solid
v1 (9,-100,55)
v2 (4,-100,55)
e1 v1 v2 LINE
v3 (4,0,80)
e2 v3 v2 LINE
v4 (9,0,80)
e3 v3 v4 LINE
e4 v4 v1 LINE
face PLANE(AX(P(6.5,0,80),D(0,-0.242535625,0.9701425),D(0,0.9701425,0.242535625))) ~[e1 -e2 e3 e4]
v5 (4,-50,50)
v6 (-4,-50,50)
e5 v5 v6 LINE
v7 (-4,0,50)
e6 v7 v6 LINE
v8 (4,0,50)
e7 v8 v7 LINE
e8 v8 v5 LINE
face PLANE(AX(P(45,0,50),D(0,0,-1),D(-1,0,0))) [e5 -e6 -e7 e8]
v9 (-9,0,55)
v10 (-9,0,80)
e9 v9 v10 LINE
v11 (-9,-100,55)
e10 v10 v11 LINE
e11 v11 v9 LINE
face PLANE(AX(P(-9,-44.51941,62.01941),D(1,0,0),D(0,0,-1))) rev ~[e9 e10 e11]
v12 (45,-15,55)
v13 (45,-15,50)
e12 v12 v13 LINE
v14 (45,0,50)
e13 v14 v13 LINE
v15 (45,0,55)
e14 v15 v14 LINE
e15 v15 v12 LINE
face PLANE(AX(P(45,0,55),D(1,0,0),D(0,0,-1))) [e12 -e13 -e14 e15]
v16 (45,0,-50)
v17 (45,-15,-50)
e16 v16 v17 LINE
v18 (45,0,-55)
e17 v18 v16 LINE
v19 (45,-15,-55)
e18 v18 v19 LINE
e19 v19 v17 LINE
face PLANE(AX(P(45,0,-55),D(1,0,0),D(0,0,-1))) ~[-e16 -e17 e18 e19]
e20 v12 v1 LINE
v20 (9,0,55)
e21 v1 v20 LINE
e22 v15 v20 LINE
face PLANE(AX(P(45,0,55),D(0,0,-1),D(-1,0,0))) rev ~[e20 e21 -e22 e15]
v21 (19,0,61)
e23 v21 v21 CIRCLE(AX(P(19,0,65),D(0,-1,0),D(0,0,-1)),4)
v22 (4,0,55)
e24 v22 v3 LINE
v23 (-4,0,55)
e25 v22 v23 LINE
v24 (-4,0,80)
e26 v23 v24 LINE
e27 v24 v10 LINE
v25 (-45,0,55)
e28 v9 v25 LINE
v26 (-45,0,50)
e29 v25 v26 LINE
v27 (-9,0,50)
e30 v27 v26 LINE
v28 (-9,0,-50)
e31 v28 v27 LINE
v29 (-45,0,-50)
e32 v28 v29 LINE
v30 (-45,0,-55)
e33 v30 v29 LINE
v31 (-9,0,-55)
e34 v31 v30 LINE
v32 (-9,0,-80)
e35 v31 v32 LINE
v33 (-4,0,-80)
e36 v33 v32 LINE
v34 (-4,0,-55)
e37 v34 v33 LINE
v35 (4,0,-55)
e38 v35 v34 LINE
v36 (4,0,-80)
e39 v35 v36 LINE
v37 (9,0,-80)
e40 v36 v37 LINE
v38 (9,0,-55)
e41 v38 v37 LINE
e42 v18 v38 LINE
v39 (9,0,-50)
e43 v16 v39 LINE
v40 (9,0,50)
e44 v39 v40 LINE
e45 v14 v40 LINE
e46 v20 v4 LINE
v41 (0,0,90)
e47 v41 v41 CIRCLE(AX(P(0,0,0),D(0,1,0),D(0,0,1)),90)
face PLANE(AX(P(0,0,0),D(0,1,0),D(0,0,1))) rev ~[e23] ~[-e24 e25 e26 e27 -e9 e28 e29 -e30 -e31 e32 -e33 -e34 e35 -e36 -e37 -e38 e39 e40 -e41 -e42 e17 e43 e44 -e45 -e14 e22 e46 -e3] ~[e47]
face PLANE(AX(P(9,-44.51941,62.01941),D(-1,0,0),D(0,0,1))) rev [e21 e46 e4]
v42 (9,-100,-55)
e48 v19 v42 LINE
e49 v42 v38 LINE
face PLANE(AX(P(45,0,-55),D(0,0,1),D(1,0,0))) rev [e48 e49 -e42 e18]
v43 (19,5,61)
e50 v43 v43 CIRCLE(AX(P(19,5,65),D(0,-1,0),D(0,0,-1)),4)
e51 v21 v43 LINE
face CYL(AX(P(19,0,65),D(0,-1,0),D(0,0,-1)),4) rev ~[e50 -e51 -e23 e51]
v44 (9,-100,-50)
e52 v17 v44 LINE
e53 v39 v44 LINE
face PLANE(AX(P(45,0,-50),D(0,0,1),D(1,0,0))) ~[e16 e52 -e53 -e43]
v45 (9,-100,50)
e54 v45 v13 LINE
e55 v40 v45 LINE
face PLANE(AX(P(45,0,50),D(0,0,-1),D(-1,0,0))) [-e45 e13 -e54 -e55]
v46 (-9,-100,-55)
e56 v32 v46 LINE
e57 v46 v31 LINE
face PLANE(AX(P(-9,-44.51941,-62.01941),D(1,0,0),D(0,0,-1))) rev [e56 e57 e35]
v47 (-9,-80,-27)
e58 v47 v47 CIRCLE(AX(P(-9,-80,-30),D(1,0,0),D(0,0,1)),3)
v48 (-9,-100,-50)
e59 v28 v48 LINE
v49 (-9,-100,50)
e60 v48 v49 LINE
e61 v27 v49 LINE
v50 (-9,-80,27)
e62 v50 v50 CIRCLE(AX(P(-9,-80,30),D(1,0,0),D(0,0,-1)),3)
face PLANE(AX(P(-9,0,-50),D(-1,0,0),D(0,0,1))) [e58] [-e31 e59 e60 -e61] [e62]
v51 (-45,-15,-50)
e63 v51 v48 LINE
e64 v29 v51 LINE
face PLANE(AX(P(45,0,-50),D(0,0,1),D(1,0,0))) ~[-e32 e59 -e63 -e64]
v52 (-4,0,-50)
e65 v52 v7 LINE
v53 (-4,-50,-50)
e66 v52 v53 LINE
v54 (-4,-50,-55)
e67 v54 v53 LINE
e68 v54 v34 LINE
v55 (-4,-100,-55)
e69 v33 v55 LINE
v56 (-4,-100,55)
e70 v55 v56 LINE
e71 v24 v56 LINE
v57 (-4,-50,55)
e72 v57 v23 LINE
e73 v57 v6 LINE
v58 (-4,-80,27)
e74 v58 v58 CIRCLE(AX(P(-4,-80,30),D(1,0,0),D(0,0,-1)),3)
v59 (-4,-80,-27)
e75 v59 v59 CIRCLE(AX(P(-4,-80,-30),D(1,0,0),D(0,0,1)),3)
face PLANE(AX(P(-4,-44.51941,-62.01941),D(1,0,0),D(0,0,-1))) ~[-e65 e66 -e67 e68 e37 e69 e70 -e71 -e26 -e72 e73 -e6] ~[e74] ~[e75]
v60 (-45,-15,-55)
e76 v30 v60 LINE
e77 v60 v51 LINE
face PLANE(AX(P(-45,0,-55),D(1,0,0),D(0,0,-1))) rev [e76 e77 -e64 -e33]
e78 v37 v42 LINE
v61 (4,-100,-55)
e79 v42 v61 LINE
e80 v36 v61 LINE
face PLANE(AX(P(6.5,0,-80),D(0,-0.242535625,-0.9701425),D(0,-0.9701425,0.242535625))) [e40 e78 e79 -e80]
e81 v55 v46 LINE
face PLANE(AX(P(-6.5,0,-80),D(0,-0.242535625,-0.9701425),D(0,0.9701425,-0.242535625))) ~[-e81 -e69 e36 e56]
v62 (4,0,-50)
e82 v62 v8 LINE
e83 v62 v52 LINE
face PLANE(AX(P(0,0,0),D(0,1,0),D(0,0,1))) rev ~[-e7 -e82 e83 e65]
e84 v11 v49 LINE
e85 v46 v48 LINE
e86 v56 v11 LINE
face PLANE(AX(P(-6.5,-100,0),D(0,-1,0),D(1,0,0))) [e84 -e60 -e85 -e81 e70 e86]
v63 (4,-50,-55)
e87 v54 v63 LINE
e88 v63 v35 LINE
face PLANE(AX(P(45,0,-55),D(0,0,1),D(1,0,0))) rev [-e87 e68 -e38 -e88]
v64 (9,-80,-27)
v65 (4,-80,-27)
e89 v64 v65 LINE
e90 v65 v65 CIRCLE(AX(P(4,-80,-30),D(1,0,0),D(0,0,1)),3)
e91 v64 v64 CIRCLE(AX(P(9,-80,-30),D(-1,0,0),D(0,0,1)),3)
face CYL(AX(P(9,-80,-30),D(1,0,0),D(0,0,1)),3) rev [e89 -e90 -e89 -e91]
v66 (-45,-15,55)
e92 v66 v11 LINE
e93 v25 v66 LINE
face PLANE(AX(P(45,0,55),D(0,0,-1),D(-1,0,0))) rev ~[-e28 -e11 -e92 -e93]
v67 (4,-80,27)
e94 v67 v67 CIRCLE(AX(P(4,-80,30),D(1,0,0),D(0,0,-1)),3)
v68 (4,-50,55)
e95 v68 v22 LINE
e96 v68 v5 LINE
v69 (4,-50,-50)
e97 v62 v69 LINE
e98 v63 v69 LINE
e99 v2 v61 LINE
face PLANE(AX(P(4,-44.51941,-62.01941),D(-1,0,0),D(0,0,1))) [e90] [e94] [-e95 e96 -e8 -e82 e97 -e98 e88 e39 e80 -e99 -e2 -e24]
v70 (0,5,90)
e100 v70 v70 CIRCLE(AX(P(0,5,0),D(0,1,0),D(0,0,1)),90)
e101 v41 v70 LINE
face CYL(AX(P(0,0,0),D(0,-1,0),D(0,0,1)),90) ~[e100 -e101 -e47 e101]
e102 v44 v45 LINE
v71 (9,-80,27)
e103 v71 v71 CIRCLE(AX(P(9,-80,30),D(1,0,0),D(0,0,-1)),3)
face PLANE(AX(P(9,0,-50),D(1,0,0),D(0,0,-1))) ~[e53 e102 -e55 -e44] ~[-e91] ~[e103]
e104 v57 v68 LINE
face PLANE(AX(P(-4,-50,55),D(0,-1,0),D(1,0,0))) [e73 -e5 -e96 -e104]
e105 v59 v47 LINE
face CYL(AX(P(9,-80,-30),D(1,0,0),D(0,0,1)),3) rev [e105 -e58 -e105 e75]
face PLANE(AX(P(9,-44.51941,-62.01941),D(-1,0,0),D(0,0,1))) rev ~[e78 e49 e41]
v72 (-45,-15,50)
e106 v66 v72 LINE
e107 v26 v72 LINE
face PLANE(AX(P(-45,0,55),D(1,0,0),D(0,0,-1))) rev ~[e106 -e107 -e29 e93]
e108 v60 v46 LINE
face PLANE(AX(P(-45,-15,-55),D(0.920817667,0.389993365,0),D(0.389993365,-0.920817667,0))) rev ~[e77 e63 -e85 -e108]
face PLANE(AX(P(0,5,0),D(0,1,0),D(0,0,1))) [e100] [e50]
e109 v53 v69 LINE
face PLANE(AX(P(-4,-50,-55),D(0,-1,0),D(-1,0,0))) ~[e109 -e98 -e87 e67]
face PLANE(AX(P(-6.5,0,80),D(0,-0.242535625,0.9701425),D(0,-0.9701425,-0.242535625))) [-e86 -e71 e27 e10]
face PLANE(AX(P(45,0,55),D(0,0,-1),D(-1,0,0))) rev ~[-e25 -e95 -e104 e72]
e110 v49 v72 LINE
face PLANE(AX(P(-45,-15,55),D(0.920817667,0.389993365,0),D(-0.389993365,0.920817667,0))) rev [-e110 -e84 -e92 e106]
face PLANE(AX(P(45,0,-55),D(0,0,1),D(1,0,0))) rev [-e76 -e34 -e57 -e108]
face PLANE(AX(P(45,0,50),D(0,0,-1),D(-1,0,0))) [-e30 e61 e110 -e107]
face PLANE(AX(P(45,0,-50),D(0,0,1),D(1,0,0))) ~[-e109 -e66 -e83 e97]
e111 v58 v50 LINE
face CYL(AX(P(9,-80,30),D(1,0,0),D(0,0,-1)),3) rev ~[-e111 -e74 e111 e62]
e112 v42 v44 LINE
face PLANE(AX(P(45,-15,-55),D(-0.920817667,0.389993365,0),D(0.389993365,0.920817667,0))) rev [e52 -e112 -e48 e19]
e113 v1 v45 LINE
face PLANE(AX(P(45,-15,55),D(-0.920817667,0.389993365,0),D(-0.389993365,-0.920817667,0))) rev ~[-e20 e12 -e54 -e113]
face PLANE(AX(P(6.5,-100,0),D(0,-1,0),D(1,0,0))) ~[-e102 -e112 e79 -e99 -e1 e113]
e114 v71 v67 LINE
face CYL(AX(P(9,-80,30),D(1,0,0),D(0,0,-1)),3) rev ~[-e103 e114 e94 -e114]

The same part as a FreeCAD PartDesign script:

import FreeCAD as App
import Part
import Sketcher

V = App.Vector


def add_polygon(sketch, points):
    """Adds a closed chain of lines whose ends are joined by coincident constraints."""
    first, n = sketch.GeometryCount, len(points)
    for a, b in zip(points, points[1:] + points[:1]):
        sketch.addGeometry(Part.LineSegment(App.Vector(*a, 0), App.Vector(*b, 0)), False)
    for i in range(n):
        sketch.addConstraint(Sketcher.Constraint("Coincident", first + i, 2, first + (i + 1) % n, 1))

doc = App.newDocument("Part")
body = doc.addObject("PartDesign::Body", "Body")

sketch1 = body.newObject("Sketcher::SketchObject", "Sketch")
sketch1.AttachmentSupport = (doc.getObject("XZ_Plane"), [""])
sketch1.MapMode = "FlatFace"
sketch1.addGeometry(Part.Circle(V(0, 0, 0), V(0, 0, 1), 90), False)
sketch1.addConstraint(Sketcher.Constraint("Coincident", 0, 3, -1, 1))
sketch1.addConstraint(Sketcher.Constraint("Diameter", 0, 180.0))
pad1 = body.newObject("PartDesign::Pad", "Pad")
pad1.Profile = sketch1
pad1.Length = 5
pad1.Reversed = True

sketch2 = body.newObject("Sketcher::SketchObject", "Sketch001")
sketch2.AttachmentSupport = (doc.getObject("XZ_Plane"), [""])
sketch2.MapMode = "FlatFace"
add_polygon(sketch2, [(45, 50), (45, 55), (-45, 55), (-45, 50)])
sketch2.addConstraint(Sketcher.Constraint("Vertical", 0))
sketch2.addConstraint(Sketcher.Constraint("Horizontal", 1))
sketch2.addConstraint(Sketcher.Constraint("Vertical", 2))
sketch2.addConstraint(Sketcher.Constraint("Horizontal", 3))
sketch2.addConstraint(Sketcher.Constraint("DistanceX", 1, 2, 1, 1, 90.0))
sketch2.addConstraint(Sketcher.Constraint("DistanceY", 0, 1, 0, 2, 5.0))
sketch2.addConstraint(Sketcher.Constraint("DistanceX", -1, 1, 0, 2, 45.0))
sketch2.addConstraint(Sketcher.Constraint("DistanceY", -1, 1, 0, 2, 55.0))
pad2 = body.newObject("PartDesign::Pad", "Pad001")
pad2.Profile = sketch2
pad2.Length = 100

sketch3 = body.newObject("Sketcher::SketchObject", "Sketch002")
sketch3.AttachmentSupport = (doc.getObject("XY_Plane"), [""])
sketch3.MapMode = "FlatFace"
sketch3.AttachmentOffset = App.Placement(V(0, 0, 55), App.Rotation())
add_polygon(sketch3, [(45, -15), (9, -100), (45, -100)])
sketch3.addConstraint(Sketcher.Constraint("Horizontal", 1))
sketch3.addConstraint(Sketcher.Constraint("Vertical", 2))
sketch3.addConstraint(Sketcher.Constraint("DistanceX", 1, 1, 1, 2, 36.0))
sketch3.addConstraint(Sketcher.Constraint("DistanceY", 2, 1, 2, 2, 85.0))
sketch3.addConstraint(Sketcher.Constraint("DistanceX", -1, 1, 0, 2, 9.0))
sketch3.addConstraint(Sketcher.Constraint("DistanceY", 0, 2, -1, 1, 100.0))
pocket1 = body.newObject("PartDesign::Pocket", "Pocket")
pocket1.Profile = sketch3
pocket1.Length = 100
doc.recompute()

mirrored = body.newObject("PartDesign::Mirrored", "Mirrored")
mirrored.Originals = [pocket1]
mirrored.MirrorPlane = (doc.getObject("YZ_Plane"), [""])
body.Tip = mirrored

sketch4 = body.newObject("Sketcher::SketchObject", "Sketch003")
sketch4.AttachmentSupport = (doc.getObject("XY_Plane"), [""])
sketch4.MapMode = "FlatFace"
sketch4.AttachmentOffset = App.Placement(V(0, 0, 55), App.Rotation())
add_polygon(sketch4, [(-4, -50), (-4, -100), (4, -100), (4, -50)])
sketch4.addConstraint(Sketcher.Constraint("Vertical", 0))
sketch4.addConstraint(Sketcher.Constraint("Horizontal", 1))
sketch4.addConstraint(Sketcher.Constraint("Vertical", 2))
sketch4.addConstraint(Sketcher.Constraint("Horizontal", 3))
sketch4.addConstraint(Sketcher.Constraint("DistanceX", 1, 1, 1, 2, 8.0))
sketch4.addConstraint(Sketcher.Constraint("DistanceY", 0, 2, 0, 1, 50.0))
sketch4.addConstraint(Sketcher.Constraint("DistanceX", 0, 2, -1, 1, 4.0))
sketch4.addConstraint(Sketcher.Constraint("DistanceY", 0, 2, -1, 1, 100.0))
pocket2 = body.newObject("PartDesign::Pocket", "Pocket001")
pocket2.Profile = sketch4
pocket2.Type = "ThroughAll"
doc.recompute()

mirrored2 = body.newObject("PartDesign::Mirrored", "Mirrored001")
mirrored2.Originals = [pad2, pocket1, pocket2]
mirrored2.MirrorPlane = (doc.getObject("XY_Plane"), [""])
body.Tip = mirrored2

sketch5 = body.newObject("Sketcher::SketchObject", "Sketch004")
sketch5.AttachmentSupport = (doc.getObject("XY_Plane"), [""])
sketch5.MapMode = "FlatFace"
sketch5.AttachmentOffset = App.Placement(V(0, 0, -55), App.Rotation())
add_polygon(sketch5, [(-45, -15), (-9, -100), (-45, -100)])
sketch5.addConstraint(Sketcher.Constraint("Horizontal", 1))
sketch5.addConstraint(Sketcher.Constraint("Vertical", 2))
sketch5.addConstraint(Sketcher.Constraint("DistanceX", 1, 2, 1, 1, 36.0))
sketch5.addConstraint(Sketcher.Constraint("DistanceY", 2, 1, 2, 2, 85.0))
sketch5.addConstraint(Sketcher.Constraint("DistanceX", 0, 2, -1, 1, 9.0))
sketch5.addConstraint(Sketcher.Constraint("DistanceY", 0, 2, -1, 1, 100.0))
pocket3 = body.newObject("PartDesign::Pocket", "Pocket002")
pocket3.Profile = sketch5
pocket3.Length = 100
pocket3.Reversed = True

sketch6 = body.newObject("Sketcher::SketchObject", "Sketch005")
sketch6.AttachmentSupport = (doc.getObject("XZ_Plane"), [""])
sketch6.MapMode = "FlatFace"
add_polygon(sketch6, [(-9, 50), (-9, -50), (-4, -50), (-4, 50)])
sketch6.addConstraint(Sketcher.Constraint("Vertical", 0))
sketch6.addConstraint(Sketcher.Constraint("Horizontal", 1))
sketch6.addConstraint(Sketcher.Constraint("Vertical", 2))
sketch6.addConstraint(Sketcher.Constraint("Horizontal", 3))
sketch6.addConstraint(Sketcher.Constraint("DistanceX", 1, 1, 1, 2, 5.0))
sketch6.addConstraint(Sketcher.Constraint("DistanceY", 0, 2, 0, 1, 100.0))
sketch6.addConstraint(Sketcher.Constraint("DistanceX", 0, 2, -1, 1, 9.0))
sketch6.addConstraint(Sketcher.Constraint("DistanceY", 0, 2, -1, 1, 50.0))
pad3 = body.newObject("PartDesign::Pad", "Pad002")
pad3.Profile = sketch6
pad3.Length = 100
doc.recompute()

mirrored3 = body.newObject("PartDesign::Mirrored", "Mirrored002")
mirrored3.Originals = [pad3]
mirrored3.MirrorPlane = (doc.getObject("YZ_Plane"), [""])
body.Tip = mirrored3

sketch7 = body.newObject("Sketcher::SketchObject", "Sketch006")
sketch7.AttachmentSupport = (doc.getObject("YZ_Plane"), [""])
sketch7.MapMode = "FlatFace"
sketch7.AttachmentOffset = App.Placement(V(0, 0, -6.5), App.Rotation())
add_polygon(sketch7, [(-100, 55), (0, 55), (0, 80)])
sketch7.addConstraint(Sketcher.Constraint("Horizontal", 0))
sketch7.addConstraint(Sketcher.Constraint("Vertical", 1))
sketch7.addConstraint(Sketcher.Constraint("PointOnObject", 0, 2, -2))
sketch7.addConstraint(Sketcher.Constraint("DistanceX", 0, 1, 0, 2, 100.0))
sketch7.addConstraint(Sketcher.Constraint("DistanceY", 1, 1, 1, 2, 25.0))
sketch7.addConstraint(Sketcher.Constraint("DistanceY", -1, 1, 0, 2, 55.0))
pad4 = body.newObject("PartDesign::Pad", "Pad003")
pad4.Profile = sketch7
pad4.Length = 5
pad4.Midplane = True
doc.recompute()

mirrored4 = body.newObject("PartDesign::Mirrored", "Mirrored003")
mirrored4.Originals = [pad4]
mirrored4.MirrorPlane = (doc.getObject("YZ_Plane"), [""])
body.Tip = mirrored4
doc.recompute()

mirrored5 = body.newObject("PartDesign::Mirrored", "Mirrored004")
mirrored5.Originals = [pad4]
mirrored5.MirrorPlane = (doc.getObject("XY_Plane"), [""])
body.Tip = mirrored5

sketch8 = body.newObject("Sketcher::SketchObject", "Sketch007")
sketch8.AttachmentSupport = (doc.getObject("YZ_Plane"), [""])
sketch8.MapMode = "FlatFace"
sketch8.AttachmentOffset = App.Placement(V(0, 0, 6.5), App.Rotation())
add_polygon(sketch8, [(-100, -55), (0, -55), (0, -80)])
sketch8.addConstraint(Sketcher.Constraint("Horizontal", 0))
sketch8.addConstraint(Sketcher.Constraint("Vertical", 1))
sketch8.addConstraint(Sketcher.Constraint("PointOnObject", 0, 2, -2))
sketch8.addConstraint(Sketcher.Constraint("DistanceX", 0, 1, 0, 2, 100.0))
sketch8.addConstraint(Sketcher.Constraint("DistanceY", 1, 2, 1, 1, 25.0))
sketch8.addConstraint(Sketcher.Constraint("DistanceY", 0, 2, -1, 1, 55.0))
pad5 = body.newObject("PartDesign::Pad", "Pad004")
pad5.Profile = sketch8
pad5.Length = 5
pad5.Midplane = True

sketch9 = body.newObject("Sketcher::SketchObject", "Sketch008")
sketch9.AttachmentSupport = (doc.getObject("YZ_Plane"), [""])
sketch9.MapMode = "FlatFace"
sketch9.AttachmentOffset = App.Placement(V(0, 0, 9), App.Rotation())
sketch9.addGeometry(Part.Circle(V(-80, 30, 0), V(0, 0, 1), 3), False)
sketch9.addConstraint(Sketcher.Constraint("Diameter", 0, 6.0))
sketch9.addConstraint(Sketcher.Constraint("DistanceX", 0, 3, -1, 1, 80.0))
sketch9.addConstraint(Sketcher.Constraint("DistanceY", -1, 1, 0, 3, 30.0))
pocket4 = body.newObject("PartDesign::Pocket", "Pocket003")
pocket4.Profile = sketch9
pocket4.Type = "ThroughAll"
doc.recompute()

mirrored6 = body.newObject("PartDesign::Mirrored", "Mirrored005")
mirrored6.Originals = [pocket4]
mirrored6.MirrorPlane = (doc.getObject("XY_Plane"), [""])
body.Tip = mirrored6

sketch10 = body.newObject("Sketcher::SketchObject", "Sketch009")
sketch10.AttachmentSupport = (doc.getObject("XZ_Plane"), [""])
sketch10.MapMode = "FlatFace"
sketch10.addGeometry(Part.Circle(V(19, 65, 0), V(0, 0, 1), 4), False)
sketch10.addConstraint(Sketcher.Constraint("Diameter", 0, 8.0))
sketch10.addConstraint(Sketcher.Constraint("DistanceX", -1, 1, 0, 3, 19.0))
sketch10.addConstraint(Sketcher.Constraint("DistanceY", -1, 1, 0, 3, 65.0))
pocket5 = body.newObject("PartDesign::Pocket", "Pocket004")
pocket5.Profile = sketch10
pocket5.Type = "ThroughAll"

doc.recompute()
